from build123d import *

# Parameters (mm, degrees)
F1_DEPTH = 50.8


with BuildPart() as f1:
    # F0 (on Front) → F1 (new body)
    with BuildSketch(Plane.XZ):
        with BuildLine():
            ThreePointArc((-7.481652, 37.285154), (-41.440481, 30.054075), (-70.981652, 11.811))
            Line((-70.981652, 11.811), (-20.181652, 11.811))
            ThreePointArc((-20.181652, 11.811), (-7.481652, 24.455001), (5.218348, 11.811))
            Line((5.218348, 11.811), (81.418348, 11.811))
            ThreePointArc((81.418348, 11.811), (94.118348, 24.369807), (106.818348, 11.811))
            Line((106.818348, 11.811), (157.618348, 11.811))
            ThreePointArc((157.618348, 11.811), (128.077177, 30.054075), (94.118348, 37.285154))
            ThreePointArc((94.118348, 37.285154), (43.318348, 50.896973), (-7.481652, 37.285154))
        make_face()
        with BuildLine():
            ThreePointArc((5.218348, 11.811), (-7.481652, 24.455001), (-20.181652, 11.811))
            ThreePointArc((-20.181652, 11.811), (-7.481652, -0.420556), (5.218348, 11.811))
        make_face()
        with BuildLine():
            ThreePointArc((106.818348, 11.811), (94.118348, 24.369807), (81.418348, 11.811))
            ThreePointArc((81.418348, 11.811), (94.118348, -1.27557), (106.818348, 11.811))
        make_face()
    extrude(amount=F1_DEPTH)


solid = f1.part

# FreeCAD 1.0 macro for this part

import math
import FreeCAD as App
import Part
import Sketcher
from FreeCAD import Vector
Q = App.Units.Quantity

doc = App.newDocument("Part")
body = doc.addObject("PartDesign::Body", "Body")

sketch1 = body.newObject("Sketcher::SketchObject", "Sketch")
sketch1.AttachmentSupport = (doc.getObject("XZ_Plane"), [""])
sketch1.MapMode = "FlatFace"
sketch1.addGeometry([
    Part.ArcOfCircle(Part.Circle(Vector(-4, -64, 0), Vector(0, 0, 1), 102), math.radians(92), math.radians(132)),
    Part.LineSegment(Vector(-71, 12, 0), Vector(-20, 12, 0)),
    Part.ArcOfCircle(Part.Circle(Vector(-7, 12, 0), Vector(0, 0, 1), 13), math.radians(-178), math.radians(-2)),
    Part.LineSegment(Vector(5, 12, 0), Vector(81, 12, 0)),
    Part.ArcOfCircle(Part.Circle(Vector(94, 11, 0), Vector(0, 0, 1), 13), math.radians(178), math.radians(362)),
    Part.LineSegment(Vector(107, 12, 0), Vector(158, 12, 0)),
    Part.ArcOfCircle(Part.Circle(Vector(90, -64, 0), Vector(0, 0, 1), 102), math.radians(48), math.radians(88)),
    Part.ArcOfCircle(Part.Circle(Vector(43, -51, 0), Vector(0, 0, 1), 102), math.radians(60), math.radians(120)),
], False)
sketch1.addConstraint([
    Sketcher.Constraint("Coincident", 0, 2, 1, 1),
    Sketcher.Constraint("Coincident", 1, 2, 2, 1),
    Sketcher.Constraint("Coincident", 2, 2, 3, 1),
    Sketcher.Constraint("Coincident", 3, 2, 4, 1),
    Sketcher.Constraint("Coincident", 4, 2, 5, 1),
    Sketcher.Constraint("Coincident", 5, 2, 6, 1),
    Sketcher.Constraint("Coincident", 6, 2, 7, 1),
    Sketcher.Constraint("Coincident", 7, 2, 0, 1),
    Sketcher.Constraint("Horizontal", 1),
    Sketcher.Constraint("Horizontal", 3),
    Sketcher.Constraint("Horizontal", 5),
    Sketcher.Constraint("Equal", 0, 6),
    Sketcher.Constraint("Equal", 6, 7),
    Sketcher.Constraint("Horizontal", 0, 3, 6, 3),
    Sketcher.Constraint("Horizontal", 1, 2, 2, 2),
    Sketcher.Constraint("Horizontal", 3, 2, 4, 2),
    Sketcher.Constraint("Vertical", 4, 3, 6, 2),
    Sketcher.Constraint("Vertical", 2, 3, 7, 2),
    Sketcher.Constraint("Equal", 1, 5),
    Sketcher.Constraint("Radius", 0, Q("4 in")),
    Sketcher.Constraint("DistanceX", 1, 1, 1, 2, Q("2 in")),
    Sketcher.Constraint("DistanceX", 3, 1, 3, 2, Q("3 in")),
    Sketcher.Constraint("DistanceX", 2, 3, 4, 3, Q("4 in")),
    Sketcher.Constraint("DistanceX", 7, 3, 4, 3, Q("2 in")),
    Sketcher.Constraint("DistanceY", -1, 1, 0, 2, Q("0.465 in")),
    Sketcher.Constraint("Radius", 2, 12.70897),
    Sketcher.Constraint("Radius", 4, 12.70571),
    Sketcher.Constraint("DistanceX", 0, 3, -1, 1, 3.61228),
    Sketcher.Constraint("DistanceY", 0, 3, -1, 1, 64.241138),
])
pad1 = body.newObject("PartDesign::Pad", "Pad")
pad1.Profile = sketch1
pad1.Length = Q("2 in")

doc.recompute()
